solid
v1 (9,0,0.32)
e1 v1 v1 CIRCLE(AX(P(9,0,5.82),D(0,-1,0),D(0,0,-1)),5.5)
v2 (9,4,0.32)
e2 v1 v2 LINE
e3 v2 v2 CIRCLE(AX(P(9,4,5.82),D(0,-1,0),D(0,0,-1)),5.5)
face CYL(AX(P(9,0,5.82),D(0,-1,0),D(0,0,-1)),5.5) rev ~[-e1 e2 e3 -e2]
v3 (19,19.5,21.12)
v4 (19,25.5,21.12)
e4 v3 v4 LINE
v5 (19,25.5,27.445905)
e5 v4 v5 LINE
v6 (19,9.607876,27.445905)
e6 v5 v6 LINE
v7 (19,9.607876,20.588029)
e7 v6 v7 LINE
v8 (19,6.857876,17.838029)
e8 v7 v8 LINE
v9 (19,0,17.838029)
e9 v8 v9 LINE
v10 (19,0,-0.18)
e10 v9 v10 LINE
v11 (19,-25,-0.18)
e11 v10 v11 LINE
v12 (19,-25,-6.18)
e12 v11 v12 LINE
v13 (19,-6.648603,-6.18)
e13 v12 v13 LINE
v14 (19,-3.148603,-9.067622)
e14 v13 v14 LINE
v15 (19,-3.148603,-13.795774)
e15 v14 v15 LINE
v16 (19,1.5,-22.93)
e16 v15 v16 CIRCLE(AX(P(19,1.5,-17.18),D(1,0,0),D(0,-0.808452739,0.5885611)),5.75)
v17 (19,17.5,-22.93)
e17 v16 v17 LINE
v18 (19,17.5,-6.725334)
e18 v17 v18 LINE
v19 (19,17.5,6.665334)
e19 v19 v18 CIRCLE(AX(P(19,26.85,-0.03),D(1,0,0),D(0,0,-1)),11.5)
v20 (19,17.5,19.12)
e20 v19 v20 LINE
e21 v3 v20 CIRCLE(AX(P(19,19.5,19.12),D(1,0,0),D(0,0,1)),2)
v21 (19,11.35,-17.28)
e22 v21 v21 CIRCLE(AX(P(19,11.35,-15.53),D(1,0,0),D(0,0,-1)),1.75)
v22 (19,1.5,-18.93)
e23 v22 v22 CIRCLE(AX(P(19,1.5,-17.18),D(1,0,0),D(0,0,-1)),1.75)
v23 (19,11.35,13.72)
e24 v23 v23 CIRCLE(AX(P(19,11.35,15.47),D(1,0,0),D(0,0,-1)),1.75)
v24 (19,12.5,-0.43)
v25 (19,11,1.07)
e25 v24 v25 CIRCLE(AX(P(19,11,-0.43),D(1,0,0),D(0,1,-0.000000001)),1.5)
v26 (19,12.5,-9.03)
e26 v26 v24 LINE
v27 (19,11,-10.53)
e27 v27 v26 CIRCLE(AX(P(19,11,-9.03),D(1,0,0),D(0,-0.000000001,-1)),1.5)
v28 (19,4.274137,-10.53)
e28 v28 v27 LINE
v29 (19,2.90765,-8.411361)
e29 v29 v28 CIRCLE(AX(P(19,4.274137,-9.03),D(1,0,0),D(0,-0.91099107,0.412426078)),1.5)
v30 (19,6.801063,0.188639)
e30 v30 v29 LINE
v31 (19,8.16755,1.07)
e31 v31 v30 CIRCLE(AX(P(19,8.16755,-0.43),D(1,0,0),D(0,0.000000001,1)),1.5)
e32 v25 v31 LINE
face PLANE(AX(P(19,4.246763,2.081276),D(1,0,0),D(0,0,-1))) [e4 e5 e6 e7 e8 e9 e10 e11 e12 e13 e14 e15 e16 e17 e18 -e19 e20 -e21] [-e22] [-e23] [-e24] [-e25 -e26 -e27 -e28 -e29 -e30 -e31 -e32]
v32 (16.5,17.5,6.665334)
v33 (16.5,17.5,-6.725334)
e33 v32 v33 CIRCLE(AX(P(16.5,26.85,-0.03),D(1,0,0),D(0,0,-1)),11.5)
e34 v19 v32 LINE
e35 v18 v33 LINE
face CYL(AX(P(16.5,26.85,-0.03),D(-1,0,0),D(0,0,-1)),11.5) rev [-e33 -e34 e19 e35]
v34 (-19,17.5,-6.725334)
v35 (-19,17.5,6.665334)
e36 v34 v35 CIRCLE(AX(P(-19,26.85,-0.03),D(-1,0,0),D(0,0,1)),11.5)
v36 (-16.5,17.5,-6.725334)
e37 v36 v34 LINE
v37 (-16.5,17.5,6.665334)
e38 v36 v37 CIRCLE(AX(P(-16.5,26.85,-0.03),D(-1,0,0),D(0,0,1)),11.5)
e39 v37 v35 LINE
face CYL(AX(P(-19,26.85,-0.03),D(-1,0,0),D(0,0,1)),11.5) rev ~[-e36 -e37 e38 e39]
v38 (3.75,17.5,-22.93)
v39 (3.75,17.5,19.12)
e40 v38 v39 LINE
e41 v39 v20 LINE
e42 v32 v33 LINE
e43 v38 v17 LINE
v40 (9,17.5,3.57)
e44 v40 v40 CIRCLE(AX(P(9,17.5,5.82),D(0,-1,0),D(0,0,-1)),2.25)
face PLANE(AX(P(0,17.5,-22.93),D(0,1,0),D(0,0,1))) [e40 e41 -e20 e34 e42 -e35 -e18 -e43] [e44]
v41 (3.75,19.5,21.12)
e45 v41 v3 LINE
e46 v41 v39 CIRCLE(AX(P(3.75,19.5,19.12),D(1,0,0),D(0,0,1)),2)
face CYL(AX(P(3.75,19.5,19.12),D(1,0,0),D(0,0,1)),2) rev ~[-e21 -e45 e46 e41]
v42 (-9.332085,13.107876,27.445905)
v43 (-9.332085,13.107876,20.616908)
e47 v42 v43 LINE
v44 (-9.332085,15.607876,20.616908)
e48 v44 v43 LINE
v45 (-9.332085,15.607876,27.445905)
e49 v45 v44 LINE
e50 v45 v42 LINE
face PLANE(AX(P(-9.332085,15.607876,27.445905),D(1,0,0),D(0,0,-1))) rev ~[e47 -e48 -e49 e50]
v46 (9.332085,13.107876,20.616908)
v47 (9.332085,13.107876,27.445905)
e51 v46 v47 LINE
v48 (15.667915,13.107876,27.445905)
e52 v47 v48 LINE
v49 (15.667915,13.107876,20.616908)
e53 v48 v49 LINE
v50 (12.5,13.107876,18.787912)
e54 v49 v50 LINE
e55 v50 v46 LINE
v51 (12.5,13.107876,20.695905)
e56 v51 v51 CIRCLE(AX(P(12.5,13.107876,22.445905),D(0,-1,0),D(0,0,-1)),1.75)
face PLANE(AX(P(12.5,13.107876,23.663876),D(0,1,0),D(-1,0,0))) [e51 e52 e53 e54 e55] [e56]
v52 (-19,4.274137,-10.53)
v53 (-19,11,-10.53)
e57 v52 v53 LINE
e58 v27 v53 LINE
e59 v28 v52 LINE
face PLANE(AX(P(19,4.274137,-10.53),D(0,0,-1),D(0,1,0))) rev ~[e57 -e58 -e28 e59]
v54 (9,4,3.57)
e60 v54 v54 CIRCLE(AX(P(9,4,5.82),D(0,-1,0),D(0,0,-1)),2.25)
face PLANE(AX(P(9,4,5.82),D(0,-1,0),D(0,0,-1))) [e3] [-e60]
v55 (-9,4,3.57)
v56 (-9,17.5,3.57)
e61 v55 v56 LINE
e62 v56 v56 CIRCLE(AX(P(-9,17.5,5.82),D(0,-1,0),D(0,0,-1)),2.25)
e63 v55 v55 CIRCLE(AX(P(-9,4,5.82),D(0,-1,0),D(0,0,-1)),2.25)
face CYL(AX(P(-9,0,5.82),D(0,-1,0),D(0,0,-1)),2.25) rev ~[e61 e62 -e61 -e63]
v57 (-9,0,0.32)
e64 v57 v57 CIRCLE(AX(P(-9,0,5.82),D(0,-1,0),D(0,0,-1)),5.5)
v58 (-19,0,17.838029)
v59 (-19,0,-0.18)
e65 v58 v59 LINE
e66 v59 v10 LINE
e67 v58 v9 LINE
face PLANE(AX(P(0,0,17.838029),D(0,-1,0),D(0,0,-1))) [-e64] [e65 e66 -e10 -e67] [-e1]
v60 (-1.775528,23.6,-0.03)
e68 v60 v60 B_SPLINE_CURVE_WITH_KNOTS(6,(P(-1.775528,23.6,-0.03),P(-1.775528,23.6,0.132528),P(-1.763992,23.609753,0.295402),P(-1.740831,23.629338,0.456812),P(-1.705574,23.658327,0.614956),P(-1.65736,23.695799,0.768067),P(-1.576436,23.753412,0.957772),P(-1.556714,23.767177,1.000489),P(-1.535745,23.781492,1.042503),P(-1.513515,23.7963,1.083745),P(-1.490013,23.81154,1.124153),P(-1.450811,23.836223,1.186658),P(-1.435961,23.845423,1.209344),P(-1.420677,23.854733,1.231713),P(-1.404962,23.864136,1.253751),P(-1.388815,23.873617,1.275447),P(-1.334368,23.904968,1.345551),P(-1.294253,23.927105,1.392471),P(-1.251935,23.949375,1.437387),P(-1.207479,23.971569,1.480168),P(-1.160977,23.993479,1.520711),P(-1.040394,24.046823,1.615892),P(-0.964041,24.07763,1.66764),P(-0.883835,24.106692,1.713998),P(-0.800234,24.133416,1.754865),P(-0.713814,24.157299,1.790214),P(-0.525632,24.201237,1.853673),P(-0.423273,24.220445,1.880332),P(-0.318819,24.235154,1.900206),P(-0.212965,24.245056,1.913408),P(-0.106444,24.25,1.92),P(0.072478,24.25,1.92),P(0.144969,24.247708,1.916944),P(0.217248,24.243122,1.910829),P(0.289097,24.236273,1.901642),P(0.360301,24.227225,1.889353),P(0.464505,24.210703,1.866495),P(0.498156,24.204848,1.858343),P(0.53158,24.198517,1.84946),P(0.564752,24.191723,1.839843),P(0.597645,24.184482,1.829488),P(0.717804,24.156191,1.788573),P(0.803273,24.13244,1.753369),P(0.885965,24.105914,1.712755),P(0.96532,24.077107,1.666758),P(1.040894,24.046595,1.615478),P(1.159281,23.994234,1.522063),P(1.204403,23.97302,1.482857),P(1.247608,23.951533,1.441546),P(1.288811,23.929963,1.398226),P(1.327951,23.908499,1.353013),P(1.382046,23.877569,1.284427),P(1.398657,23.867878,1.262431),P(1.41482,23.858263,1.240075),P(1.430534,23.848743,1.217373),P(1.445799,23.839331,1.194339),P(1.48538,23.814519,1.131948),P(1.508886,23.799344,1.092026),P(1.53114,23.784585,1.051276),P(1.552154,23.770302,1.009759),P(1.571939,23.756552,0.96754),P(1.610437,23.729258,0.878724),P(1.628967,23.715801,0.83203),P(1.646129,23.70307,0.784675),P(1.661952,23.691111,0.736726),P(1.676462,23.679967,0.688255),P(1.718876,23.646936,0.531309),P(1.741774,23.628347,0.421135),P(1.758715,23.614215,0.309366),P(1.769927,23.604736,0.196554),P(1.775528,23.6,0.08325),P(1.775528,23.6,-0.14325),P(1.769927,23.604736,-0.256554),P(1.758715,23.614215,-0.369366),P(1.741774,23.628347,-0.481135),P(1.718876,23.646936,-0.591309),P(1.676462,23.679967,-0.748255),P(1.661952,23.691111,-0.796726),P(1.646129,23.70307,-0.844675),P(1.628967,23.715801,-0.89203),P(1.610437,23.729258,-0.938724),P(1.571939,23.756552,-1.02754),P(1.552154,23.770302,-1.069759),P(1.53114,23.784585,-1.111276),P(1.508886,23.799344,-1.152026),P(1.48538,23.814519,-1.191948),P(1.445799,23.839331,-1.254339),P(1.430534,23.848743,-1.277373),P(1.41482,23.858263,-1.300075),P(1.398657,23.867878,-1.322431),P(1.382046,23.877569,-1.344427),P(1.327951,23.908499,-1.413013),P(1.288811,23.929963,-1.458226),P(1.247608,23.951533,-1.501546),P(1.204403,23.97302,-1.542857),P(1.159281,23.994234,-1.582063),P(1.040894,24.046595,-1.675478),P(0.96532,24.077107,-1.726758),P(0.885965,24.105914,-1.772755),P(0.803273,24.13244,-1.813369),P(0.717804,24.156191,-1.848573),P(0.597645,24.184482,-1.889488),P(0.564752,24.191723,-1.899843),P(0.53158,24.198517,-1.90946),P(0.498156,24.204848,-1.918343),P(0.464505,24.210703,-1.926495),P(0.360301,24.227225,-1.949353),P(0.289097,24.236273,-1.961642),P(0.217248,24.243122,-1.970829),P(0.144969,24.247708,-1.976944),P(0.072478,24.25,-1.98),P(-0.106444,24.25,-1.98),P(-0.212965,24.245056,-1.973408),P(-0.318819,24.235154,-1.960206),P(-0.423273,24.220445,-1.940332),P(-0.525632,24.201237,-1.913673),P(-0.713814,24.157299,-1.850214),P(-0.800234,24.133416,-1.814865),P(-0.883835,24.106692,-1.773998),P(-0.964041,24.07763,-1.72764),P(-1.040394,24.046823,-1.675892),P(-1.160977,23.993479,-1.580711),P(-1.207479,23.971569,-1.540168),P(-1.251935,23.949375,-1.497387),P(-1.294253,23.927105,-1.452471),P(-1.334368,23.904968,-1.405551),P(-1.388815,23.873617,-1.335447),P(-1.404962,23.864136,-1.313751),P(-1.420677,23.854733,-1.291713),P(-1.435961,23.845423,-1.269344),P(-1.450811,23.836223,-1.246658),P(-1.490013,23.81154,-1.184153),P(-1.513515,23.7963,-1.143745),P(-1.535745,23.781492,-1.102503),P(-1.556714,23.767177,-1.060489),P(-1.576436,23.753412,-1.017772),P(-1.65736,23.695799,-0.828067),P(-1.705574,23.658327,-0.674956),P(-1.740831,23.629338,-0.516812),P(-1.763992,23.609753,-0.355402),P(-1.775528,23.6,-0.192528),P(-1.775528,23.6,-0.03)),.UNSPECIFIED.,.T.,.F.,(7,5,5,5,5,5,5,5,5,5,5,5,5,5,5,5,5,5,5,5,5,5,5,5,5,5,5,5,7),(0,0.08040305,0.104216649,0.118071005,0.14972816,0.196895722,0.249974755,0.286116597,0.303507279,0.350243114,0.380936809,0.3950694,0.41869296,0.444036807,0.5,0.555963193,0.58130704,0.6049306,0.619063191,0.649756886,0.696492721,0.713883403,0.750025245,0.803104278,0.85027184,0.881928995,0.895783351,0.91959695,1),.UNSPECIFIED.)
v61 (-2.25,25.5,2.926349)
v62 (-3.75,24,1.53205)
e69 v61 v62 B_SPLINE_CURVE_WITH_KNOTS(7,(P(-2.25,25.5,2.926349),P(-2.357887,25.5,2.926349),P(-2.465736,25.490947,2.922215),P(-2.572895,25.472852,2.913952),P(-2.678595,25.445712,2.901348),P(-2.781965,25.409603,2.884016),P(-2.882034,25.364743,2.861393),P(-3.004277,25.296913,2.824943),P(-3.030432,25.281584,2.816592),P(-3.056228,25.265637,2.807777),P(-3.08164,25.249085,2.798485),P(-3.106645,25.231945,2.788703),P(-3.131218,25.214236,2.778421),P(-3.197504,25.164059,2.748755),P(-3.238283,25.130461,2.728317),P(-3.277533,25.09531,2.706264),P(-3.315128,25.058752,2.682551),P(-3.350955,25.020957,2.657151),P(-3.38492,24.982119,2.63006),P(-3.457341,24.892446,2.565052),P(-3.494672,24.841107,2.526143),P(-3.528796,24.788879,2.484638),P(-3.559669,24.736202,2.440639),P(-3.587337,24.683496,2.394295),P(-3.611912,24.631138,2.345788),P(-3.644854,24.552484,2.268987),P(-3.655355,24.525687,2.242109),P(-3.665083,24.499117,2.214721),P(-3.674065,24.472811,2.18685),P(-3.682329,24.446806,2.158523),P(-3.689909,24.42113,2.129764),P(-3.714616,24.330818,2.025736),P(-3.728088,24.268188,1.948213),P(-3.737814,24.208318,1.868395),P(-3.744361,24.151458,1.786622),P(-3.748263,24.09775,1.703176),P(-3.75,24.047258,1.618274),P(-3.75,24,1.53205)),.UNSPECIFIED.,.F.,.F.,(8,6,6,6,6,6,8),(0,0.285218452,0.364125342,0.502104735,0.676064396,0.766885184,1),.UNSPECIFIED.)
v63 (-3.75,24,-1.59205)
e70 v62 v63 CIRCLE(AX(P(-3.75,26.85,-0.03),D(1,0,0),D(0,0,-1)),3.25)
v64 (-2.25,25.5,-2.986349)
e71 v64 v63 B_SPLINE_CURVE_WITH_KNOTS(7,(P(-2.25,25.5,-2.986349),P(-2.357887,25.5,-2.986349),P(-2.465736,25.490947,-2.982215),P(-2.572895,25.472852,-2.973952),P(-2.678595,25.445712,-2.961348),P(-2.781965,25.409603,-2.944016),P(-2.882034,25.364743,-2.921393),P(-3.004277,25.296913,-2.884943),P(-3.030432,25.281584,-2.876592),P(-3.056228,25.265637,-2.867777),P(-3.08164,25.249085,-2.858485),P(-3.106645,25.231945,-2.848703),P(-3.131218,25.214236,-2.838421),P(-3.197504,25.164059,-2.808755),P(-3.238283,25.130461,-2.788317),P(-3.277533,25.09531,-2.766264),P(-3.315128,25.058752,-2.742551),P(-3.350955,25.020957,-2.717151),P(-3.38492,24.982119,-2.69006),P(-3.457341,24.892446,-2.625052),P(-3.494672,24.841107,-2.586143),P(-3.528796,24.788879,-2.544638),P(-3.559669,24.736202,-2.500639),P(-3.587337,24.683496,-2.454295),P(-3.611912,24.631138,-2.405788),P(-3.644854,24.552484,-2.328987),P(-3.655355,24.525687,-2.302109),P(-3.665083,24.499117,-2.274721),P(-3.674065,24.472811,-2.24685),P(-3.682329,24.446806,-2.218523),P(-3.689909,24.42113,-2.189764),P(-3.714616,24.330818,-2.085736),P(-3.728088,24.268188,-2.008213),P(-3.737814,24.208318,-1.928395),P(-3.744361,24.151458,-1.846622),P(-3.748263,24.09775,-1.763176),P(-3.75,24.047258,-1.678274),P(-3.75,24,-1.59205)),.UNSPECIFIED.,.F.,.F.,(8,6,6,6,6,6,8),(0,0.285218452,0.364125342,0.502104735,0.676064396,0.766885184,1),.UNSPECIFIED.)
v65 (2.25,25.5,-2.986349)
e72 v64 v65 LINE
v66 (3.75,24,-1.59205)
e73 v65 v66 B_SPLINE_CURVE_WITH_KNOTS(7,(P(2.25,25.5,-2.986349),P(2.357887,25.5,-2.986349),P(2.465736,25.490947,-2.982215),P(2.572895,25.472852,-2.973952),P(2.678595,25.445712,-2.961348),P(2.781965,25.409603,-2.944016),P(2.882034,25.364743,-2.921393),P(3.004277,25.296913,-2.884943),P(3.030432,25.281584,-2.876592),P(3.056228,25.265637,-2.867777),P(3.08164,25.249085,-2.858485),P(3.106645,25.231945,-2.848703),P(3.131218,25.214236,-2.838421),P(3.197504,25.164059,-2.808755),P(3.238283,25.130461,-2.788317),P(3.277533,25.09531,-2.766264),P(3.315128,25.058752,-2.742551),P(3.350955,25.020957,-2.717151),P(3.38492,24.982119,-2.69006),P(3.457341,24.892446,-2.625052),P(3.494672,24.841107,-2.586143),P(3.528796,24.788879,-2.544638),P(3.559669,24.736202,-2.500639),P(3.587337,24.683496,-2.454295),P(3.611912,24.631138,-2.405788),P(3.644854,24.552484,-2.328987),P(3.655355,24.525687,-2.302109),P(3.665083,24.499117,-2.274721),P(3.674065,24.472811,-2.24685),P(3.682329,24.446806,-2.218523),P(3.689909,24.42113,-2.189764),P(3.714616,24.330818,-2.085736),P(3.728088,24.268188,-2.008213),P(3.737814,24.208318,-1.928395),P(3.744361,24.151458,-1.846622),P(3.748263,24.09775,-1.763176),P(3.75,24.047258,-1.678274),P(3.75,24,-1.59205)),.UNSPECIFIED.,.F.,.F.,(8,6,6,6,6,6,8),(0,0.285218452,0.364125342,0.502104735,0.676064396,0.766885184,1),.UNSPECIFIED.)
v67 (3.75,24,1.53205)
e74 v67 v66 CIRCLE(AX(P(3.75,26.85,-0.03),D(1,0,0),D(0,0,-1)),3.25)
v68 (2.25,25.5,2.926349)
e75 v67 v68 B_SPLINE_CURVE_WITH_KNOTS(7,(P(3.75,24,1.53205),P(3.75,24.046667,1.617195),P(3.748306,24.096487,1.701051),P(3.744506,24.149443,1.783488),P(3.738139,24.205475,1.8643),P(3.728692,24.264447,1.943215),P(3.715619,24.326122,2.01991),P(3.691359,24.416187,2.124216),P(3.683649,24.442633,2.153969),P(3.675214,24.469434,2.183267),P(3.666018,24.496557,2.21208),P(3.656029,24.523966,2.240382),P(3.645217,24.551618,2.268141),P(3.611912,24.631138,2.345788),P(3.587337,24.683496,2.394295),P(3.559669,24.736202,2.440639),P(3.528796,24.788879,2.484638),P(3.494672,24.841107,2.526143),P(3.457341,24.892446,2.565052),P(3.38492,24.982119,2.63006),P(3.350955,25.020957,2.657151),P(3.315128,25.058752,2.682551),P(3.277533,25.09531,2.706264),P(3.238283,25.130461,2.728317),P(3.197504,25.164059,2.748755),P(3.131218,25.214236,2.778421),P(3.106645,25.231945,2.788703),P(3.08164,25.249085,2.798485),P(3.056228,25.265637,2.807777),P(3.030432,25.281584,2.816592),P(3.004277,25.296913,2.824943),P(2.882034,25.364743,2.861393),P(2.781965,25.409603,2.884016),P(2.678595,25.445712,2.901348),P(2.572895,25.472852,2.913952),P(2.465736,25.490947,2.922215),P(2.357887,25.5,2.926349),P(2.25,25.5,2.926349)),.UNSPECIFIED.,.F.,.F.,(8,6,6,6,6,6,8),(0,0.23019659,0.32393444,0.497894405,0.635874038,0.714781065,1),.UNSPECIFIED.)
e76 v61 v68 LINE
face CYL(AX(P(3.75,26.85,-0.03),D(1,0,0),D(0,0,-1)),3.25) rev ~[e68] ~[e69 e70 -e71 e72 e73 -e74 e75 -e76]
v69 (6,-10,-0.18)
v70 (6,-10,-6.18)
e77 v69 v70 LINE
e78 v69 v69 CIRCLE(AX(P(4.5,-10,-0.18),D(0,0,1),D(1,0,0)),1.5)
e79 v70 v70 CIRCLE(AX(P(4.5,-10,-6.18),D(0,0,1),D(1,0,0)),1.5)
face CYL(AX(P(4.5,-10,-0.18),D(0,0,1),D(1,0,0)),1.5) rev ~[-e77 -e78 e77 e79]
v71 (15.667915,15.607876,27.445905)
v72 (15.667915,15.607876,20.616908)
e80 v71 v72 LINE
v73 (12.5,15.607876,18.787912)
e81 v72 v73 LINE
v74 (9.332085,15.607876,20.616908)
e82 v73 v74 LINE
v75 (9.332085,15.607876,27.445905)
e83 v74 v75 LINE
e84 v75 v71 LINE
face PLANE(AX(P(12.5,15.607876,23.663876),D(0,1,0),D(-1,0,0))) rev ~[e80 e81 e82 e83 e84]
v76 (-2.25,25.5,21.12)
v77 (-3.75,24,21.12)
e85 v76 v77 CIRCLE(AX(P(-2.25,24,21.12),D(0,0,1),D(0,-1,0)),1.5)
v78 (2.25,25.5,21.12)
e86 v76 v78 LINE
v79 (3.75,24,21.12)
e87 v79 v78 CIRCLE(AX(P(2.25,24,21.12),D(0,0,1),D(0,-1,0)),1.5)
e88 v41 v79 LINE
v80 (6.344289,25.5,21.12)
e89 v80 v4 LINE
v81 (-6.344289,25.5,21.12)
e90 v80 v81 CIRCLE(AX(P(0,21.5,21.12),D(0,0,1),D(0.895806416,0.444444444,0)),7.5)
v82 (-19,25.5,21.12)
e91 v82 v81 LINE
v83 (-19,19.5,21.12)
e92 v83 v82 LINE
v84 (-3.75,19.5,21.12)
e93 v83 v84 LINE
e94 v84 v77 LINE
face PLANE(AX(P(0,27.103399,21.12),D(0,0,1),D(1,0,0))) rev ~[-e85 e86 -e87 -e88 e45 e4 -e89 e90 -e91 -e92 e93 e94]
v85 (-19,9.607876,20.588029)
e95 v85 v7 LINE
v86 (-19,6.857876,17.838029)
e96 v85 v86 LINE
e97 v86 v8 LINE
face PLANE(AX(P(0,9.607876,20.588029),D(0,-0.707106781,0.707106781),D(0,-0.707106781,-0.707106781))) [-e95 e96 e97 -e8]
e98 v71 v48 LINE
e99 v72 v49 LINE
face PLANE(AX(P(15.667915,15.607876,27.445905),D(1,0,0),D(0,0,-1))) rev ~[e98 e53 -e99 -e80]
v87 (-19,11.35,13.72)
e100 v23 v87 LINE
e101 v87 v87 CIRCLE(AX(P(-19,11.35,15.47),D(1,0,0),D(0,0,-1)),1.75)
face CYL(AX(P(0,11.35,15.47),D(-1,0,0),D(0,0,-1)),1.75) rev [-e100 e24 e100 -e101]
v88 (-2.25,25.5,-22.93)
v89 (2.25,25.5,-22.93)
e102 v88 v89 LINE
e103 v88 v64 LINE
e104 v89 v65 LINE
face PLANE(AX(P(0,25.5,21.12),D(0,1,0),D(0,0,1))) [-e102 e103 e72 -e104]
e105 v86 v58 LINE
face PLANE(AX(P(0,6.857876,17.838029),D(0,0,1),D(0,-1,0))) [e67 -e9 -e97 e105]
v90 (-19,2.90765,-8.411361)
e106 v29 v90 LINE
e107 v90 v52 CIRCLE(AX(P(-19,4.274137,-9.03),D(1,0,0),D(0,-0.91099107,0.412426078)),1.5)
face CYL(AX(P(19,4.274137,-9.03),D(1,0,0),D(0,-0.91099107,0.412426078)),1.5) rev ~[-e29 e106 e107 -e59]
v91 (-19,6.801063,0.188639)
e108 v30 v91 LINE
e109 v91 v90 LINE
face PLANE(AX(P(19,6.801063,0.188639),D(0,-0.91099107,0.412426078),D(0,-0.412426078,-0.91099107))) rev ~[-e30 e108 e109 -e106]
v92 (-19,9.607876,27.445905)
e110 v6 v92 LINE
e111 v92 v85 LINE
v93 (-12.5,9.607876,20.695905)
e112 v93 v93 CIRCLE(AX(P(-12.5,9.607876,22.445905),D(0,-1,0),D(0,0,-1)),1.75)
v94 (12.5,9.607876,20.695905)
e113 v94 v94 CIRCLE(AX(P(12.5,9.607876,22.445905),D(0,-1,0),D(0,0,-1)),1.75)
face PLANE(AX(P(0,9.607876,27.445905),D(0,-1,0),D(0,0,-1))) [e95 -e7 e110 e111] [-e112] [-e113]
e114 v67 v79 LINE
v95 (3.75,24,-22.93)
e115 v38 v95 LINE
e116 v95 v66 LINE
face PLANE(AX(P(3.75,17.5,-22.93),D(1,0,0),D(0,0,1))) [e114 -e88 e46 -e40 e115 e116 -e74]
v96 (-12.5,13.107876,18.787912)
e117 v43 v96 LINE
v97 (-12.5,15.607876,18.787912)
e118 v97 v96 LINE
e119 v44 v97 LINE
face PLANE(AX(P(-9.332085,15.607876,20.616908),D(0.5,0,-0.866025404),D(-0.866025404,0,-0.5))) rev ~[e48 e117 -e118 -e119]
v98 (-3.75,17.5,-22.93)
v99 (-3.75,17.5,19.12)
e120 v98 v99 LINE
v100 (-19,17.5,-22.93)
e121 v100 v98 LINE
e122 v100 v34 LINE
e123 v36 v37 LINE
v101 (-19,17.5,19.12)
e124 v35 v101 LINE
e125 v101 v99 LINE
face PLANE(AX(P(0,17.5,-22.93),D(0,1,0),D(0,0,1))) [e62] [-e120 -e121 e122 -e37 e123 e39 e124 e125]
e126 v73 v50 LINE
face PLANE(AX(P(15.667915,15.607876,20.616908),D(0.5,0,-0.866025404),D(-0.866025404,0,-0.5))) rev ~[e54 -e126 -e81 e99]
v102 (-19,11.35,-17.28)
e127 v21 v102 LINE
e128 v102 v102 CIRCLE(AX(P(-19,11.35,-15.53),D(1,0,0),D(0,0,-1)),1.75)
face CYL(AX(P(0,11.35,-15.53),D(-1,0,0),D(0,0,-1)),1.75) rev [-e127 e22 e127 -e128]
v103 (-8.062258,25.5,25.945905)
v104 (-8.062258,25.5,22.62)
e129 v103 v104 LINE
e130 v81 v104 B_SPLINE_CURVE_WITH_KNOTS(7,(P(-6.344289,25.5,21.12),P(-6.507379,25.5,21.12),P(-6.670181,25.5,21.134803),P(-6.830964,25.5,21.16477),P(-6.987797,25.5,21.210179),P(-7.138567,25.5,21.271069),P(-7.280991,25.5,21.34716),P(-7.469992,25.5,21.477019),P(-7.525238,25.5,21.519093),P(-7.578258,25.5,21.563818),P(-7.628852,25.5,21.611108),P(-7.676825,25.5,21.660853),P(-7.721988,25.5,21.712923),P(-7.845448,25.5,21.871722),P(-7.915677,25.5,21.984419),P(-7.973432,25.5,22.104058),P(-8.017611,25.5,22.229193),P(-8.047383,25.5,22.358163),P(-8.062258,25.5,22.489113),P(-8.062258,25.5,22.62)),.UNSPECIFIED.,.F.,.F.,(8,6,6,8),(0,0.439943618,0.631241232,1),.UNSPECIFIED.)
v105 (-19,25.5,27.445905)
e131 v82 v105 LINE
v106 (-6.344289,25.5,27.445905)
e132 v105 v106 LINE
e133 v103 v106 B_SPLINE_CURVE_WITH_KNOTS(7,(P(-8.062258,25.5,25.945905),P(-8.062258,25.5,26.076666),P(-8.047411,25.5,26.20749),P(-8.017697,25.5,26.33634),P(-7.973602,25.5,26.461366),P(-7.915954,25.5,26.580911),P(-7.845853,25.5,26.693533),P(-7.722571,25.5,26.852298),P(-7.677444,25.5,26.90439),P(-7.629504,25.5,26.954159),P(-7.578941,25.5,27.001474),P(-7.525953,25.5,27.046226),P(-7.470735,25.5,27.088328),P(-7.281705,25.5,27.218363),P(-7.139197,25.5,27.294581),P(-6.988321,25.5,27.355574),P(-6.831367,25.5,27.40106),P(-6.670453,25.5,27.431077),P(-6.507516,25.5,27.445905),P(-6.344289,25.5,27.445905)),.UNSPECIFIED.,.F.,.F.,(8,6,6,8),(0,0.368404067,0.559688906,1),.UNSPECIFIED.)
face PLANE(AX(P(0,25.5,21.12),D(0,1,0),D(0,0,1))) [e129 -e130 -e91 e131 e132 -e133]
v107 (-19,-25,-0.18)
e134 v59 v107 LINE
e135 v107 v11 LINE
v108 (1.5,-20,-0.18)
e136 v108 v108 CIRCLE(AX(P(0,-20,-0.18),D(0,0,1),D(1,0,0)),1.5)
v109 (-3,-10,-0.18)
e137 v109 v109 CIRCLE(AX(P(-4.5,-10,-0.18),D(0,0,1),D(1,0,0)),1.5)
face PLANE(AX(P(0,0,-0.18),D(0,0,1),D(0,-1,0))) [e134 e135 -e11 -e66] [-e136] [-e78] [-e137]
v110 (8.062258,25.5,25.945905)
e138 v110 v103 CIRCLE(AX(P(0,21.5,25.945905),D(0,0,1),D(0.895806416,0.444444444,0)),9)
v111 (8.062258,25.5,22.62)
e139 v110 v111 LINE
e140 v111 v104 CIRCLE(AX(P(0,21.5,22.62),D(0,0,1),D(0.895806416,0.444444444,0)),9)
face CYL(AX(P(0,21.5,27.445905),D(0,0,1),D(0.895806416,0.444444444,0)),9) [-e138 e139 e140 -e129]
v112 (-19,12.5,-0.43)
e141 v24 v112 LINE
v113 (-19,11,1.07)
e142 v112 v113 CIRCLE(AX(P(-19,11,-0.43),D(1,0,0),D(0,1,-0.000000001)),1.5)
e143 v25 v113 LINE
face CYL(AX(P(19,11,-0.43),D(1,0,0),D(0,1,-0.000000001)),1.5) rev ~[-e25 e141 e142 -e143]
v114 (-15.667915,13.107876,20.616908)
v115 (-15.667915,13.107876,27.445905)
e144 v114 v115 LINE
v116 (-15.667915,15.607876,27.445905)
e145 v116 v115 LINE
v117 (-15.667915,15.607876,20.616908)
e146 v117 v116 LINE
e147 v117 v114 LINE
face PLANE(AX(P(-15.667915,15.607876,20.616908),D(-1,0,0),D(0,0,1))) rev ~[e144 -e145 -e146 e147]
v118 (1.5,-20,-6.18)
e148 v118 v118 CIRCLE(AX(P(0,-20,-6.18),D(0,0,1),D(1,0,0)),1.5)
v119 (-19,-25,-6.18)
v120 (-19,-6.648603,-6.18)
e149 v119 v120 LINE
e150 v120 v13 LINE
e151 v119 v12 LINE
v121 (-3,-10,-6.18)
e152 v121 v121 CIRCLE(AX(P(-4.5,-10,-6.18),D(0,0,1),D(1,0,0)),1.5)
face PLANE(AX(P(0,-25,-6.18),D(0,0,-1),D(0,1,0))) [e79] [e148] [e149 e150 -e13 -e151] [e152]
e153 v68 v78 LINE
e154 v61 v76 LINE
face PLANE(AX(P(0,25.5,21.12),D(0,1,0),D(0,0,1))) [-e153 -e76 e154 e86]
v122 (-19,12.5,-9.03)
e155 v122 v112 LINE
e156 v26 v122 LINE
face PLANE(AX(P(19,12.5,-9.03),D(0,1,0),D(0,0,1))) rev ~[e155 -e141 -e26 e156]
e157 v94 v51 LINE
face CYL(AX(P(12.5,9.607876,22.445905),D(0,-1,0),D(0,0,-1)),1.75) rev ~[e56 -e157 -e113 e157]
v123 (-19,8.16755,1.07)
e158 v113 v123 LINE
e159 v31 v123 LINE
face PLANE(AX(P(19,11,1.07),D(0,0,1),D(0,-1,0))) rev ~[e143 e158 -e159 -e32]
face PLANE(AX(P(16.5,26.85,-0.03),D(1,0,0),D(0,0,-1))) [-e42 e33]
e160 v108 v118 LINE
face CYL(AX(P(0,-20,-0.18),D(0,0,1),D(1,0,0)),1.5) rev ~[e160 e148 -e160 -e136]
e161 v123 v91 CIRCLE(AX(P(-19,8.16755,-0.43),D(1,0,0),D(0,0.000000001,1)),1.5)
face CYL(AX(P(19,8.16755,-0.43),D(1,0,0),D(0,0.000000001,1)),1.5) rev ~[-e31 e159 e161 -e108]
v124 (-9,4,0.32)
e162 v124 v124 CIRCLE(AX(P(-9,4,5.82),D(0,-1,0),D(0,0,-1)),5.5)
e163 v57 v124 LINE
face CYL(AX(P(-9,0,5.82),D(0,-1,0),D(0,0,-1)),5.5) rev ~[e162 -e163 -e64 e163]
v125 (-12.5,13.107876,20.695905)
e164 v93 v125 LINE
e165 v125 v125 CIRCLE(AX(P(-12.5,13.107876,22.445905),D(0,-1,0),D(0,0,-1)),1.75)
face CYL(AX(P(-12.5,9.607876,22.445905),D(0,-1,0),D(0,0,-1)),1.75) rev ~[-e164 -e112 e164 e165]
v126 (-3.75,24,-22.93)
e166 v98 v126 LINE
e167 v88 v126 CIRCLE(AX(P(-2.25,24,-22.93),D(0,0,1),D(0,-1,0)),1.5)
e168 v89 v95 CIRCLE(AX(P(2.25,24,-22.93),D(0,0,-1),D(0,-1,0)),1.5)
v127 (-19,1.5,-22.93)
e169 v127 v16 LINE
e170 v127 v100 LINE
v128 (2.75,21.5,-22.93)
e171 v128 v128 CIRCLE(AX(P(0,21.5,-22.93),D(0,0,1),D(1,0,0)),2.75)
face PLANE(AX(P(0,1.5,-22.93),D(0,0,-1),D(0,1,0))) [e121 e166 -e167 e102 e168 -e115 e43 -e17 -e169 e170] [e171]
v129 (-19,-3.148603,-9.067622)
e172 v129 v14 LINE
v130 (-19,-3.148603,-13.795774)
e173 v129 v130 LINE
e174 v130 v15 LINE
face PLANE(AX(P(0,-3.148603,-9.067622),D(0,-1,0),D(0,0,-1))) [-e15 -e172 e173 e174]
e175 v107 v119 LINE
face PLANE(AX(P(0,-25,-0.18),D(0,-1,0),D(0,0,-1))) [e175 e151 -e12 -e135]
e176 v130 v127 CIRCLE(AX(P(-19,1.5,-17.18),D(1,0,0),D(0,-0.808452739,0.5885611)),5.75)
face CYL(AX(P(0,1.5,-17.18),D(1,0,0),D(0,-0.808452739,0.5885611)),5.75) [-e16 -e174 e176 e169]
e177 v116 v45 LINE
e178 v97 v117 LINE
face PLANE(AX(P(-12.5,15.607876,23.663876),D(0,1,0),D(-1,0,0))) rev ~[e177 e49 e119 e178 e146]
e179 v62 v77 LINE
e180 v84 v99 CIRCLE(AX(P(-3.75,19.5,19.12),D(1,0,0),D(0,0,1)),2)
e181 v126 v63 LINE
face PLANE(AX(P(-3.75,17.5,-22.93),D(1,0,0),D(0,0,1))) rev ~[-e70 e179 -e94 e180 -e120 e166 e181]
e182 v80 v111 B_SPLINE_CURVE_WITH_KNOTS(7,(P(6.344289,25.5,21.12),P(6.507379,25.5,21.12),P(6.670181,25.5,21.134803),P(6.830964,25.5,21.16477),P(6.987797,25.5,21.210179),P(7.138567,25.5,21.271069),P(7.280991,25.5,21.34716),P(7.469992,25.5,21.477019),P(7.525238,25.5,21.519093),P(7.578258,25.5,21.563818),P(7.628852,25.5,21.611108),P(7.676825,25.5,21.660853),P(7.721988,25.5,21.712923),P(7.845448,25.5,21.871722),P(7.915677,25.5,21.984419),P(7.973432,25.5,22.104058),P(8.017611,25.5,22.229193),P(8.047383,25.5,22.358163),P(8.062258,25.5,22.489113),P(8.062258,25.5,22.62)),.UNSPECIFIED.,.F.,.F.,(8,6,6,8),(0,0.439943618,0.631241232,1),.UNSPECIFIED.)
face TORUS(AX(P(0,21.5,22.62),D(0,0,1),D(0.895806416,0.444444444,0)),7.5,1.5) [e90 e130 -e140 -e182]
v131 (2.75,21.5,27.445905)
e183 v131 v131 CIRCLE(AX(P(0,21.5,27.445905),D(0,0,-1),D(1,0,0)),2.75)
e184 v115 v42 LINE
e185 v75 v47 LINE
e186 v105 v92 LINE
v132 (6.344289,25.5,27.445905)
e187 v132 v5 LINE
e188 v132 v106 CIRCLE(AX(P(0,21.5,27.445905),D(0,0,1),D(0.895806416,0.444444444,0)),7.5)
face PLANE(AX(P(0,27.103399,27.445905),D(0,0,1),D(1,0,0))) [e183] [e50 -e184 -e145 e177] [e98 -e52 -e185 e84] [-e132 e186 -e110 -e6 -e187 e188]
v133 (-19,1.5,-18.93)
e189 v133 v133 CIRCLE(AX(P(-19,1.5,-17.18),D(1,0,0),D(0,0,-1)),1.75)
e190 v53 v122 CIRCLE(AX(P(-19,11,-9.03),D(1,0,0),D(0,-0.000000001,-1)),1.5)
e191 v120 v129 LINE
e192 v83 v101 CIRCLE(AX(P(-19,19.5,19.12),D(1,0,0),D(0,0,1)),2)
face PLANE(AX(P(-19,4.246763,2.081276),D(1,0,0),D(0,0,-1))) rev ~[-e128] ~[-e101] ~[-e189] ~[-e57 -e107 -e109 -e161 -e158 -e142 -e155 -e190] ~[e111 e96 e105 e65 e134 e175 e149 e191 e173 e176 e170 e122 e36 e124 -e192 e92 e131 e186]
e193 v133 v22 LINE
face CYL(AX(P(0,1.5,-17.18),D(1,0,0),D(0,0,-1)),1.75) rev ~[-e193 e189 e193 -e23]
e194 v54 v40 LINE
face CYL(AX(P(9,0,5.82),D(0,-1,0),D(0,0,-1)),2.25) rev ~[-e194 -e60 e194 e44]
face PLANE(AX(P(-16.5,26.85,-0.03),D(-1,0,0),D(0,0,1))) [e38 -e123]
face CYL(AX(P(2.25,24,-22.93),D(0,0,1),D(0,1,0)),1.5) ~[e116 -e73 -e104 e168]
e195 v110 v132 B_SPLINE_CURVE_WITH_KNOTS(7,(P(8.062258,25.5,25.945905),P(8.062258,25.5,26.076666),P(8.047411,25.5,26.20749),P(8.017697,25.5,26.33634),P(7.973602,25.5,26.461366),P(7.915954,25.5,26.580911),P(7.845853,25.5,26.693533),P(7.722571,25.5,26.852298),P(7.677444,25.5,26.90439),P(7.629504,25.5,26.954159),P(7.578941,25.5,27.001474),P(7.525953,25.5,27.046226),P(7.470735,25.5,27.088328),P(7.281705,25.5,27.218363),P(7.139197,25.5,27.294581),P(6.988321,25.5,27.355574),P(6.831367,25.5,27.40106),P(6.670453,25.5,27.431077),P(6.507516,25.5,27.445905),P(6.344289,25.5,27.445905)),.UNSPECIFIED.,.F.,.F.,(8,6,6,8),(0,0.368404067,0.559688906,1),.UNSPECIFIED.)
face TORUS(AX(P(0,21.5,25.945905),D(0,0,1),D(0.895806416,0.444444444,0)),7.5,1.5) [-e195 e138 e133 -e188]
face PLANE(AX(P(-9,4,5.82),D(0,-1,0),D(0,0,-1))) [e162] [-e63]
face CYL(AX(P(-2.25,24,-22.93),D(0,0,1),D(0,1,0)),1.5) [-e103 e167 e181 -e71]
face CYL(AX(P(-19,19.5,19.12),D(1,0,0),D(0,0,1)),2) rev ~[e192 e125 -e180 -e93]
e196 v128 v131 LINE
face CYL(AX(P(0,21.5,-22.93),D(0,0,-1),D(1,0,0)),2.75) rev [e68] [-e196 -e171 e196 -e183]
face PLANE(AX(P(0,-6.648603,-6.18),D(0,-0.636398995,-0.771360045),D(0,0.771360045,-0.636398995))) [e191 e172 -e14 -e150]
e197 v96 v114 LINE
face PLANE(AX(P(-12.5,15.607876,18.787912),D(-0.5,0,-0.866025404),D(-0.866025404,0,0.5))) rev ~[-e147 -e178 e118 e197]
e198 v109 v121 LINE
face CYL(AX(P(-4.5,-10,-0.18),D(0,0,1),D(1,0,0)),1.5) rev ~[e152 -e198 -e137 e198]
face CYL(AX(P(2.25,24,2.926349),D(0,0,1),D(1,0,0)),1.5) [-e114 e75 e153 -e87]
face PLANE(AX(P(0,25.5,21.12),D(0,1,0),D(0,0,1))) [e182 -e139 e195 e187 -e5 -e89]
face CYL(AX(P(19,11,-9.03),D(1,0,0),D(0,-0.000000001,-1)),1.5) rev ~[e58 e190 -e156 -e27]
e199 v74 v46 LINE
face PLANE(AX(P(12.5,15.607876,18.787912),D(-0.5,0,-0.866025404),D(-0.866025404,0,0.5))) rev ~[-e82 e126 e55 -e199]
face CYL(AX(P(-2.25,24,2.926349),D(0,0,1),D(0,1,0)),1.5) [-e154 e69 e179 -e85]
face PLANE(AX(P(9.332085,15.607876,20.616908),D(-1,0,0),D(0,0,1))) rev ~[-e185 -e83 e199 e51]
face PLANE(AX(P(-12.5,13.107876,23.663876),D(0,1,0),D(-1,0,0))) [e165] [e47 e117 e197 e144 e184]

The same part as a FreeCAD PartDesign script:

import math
import FreeCAD as App
import Part
import Sketcher
Q = App.Units.Quantity


def edges_at(feature, points):
    """Names of the edges that pass closest to the given points."""
    edges = feature.Shape.Edges
    near = lambda p: min(range(len(edges)), key=lambda i: edges[i].distToShape(Part.Vertex(*p))[0])
    return sorted({f"Edge{near(p) + 1}" for p in points})

doc = App.newDocument("Part")
body = doc.addObject("PartDesign::Body", "Body")

# Sketch on YZ plane
sketch1 = doc.addObject("Sketcher::SketchObject", "Sketch")
body.addObject(sketch1)
sketch1.AttachmentSupport = (doc.YZ_Plane, [""])
sketch1.MapMode = "FlatFace"
sketch1.addGeometry([
    Part.LineSegment(App.Vector(9.607876, 27.445905, 0), App.Vector(9.607876, 20.588029, 0)),  # 0
    Part.LineSegment(App.Vector(9.607876, 20.588029, 0), App.Vector(6.857876, 17.838029, 0)),  # 1
    Part.LineSegment(App.Vector(6.857876, 17.838029, 0), App.Vector(0, 17.838029, 0)),  # 2
    Part.LineSegment(App.Vector(0, 17.838029, 0), App.Vector(0, -0.18, 0)),  # 3
    Part.LineSegment(App.Vector(0, -0.18, 0), App.Vector(-25, -0.18, 0)),  # 4
    Part.LineSegment(App.Vector(-25, -0.18, 0), App.Vector(-25, -6.18, 0)),  # 5
    Part.LineSegment(App.Vector(-25, -6.18, 0), App.Vector(-6.648603, -6.18, 0)),  # 6
    Part.LineSegment(App.Vector(-6.648603, -6.18, 0), App.Vector(-3.148603, -9.067622, 0)),  # 7
    Part.LineSegment(App.Vector(-3.148603, -9.067622, 0), App.Vector(-3.148603, -13.795774, 0)),  # 8
    Part.ArcOfCircle(Part.Circle(App.Vector(1.5, -17.18, 0), App.Vector(0, 0, 1), 5.75), math.radians(143.945034), math.radians(270)),  # 9
    Part.LineSegment(App.Vector(1.5, -22.93, 0), App.Vector(17.5, -22.93, 0)),  # 10
    Part.LineSegment(App.Vector(17.5, -22.93, 0), App.Vector(17.5, 21.12, 0)),  # 11
    Part.LineSegment(App.Vector(17.5, 21.12, 0), App.Vector(25.5, 21.12, 0)),  # 12
    Part.LineSegment(App.Vector(25.5, 21.12, 0), App.Vector(25.5, 27.445905, 0)),  # 13
    Part.LineSegment(App.Vector(25.5, 27.445905, 0), App.Vector(9.607876, 27.445905, 0)),  # 14
], False)
sketch1.addConstraint([
    Sketcher.Constraint("Coincident", 0, 2, 1, 1),
    Sketcher.Constraint("Coincident", 1, 2, 2, 1),
    Sketcher.Constraint("Coincident", 2, 2, 3, 1),
    Sketcher.Constraint("Coincident", 3, 2, 4, 1),
    Sketcher.Constraint("Coincident", 4, 2, 5, 1),
    Sketcher.Constraint("Coincident", 5, 2, 6, 1),
    Sketcher.Constraint("Coincident", 6, 2, 7, 1),
    Sketcher.Constraint("Coincident", 7, 2, 8, 1),
    Sketcher.Constraint("Coincident", 8, 2, 9, 1),
    Sketcher.Constraint("Tangent", 9, 2, 10, 1),
    Sketcher.Constraint("Coincident", 10, 2, 11, 1),
    Sketcher.Constraint("Coincident", 11, 2, 12, 1),
    Sketcher.Constraint("Coincident", 12, 2, 13, 1),
    Sketcher.Constraint("Coincident", 13, 2, 14, 1),
    Sketcher.Constraint("Coincident", 14, 2, 0, 1),
    Sketcher.Constraint("Vertical", 0),
    Sketcher.Constraint("Horizontal", 2),
    Sketcher.Constraint("Vertical", 3),
    Sketcher.Constraint("Horizontal", 4),
    Sketcher.Constraint("Vertical", 5),
    Sketcher.Constraint("Horizontal", 6),
    Sketcher.Constraint("Vertical", 8),
    Sketcher.Constraint("Horizontal", 10),
    Sketcher.Constraint("Vertical", 11),
    Sketcher.Constraint("Horizontal", 12),
    Sketcher.Constraint("Vertical", 13),
    Sketcher.Constraint("Horizontal", 14),
    Sketcher.Constraint("PointOnObject", 2, 2, -2),
    Sketcher.Constraint("Equal", 2, 0),
    Sketcher.Constraint("DistanceX", 4, 2, 4, 1, Q("25 mm")),
    Sketcher.Constraint("DistanceX", 10, 1, 10, 2, Q("16 mm")),
    Sketcher.Constraint("DistanceX", 12, 1, 12, 2, Q("8 mm")),
    Sketcher.Constraint("DistanceY", 5, 2, 5, 1, Q("6 mm")),
    Sketcher.Constraint("Angle", 1, Q("-135 deg")),
    Sketcher.Constraint("Radius", 9, Q("5.75 mm")),
    Sketcher.Constraint("DistanceY", 9, 3, 3, 2, Q("17 mm")),
    Sketcher.Constraint("DistanceY", 11, 1, 11, 2, Q("44.05 mm")),
    Sketcher.Constraint("DistanceX", -1, 1, 9, 3, Q("1.5 mm")),
    Sketcher.Constraint("DistanceX", 6, 2, 7, 2, Q("3.5 mm")),
    Sketcher.Constraint("DistanceY", 9, 3, -1, 1, Q("17.18 mm")),
    Sketcher.Constraint("DistanceX", 1, 2, 0, 2, Q("2.75 mm")),
    Sketcher.Constraint("DistanceY", 3, 2, 3, 1, Q("18.018029 mm")),
    Sketcher.Constraint("DistanceY", 8, 2, 8, 1, Q("4.728151 mm")),
    Sketcher.Constraint("Distance", 7, Q("4.53744 mm")),
    Sketcher.Constraint("DistanceX", 2, 2, 2, 1, Q("6.857876 mm")),
])
pad1 = doc.addObject("PartDesign::Pad", "Pad")
body.addObject(pad1)
pad1.Profile = sketch1
pad1.Length = 38
pad1.Midplane = True

# Sketch on XZ plane
sketch2 = doc.addObject("Sketcher::SketchObject", "Sketch001")
body.addObject(sketch2)
sketch2.AttachmentSupport = (doc.XZ_Plane, [""])
sketch2.MapMode = "FlatFace"
sketch2.AttachmentOffset = App.Placement(App.Vector(0, 0, -17.5), App.Rotation())
sketch2.addGeometry([
    Part.LineSegment(App.Vector(3.75, -22.93, 0), App.Vector(-3.75, -22.93, 0)),
    Part.LineSegment(App.Vector(-3.75, -22.93, 0), App.Vector(-3.75, 21.12, 0)),
    Part.LineSegment(App.Vector(-3.75, 21.12, 0), App.Vector(3.75, 21.12, 0)),
    Part.LineSegment(App.Vector(3.75, 21.12, 0), App.Vector(3.75, -22.93, 0)),
], False)
sketch2.addConstraint([
    Sketcher.Constraint("Coincident", 0, 2, 1, 1),
    Sketcher.Constraint("Coincident", 1, 2, 2, 1),
    Sketcher.Constraint("Coincident", 2, 2, 3, 1),
    Sketcher.Constraint("Coincident", 3, 2, 0, 1),
    Sketcher.Constraint("Horizontal", 0),
    Sketcher.Constraint("Vertical", 1),
    Sketcher.Constraint("Horizontal", 2),
    Sketcher.Constraint("Vertical", 3),
    Sketcher.Constraint("DistanceX", 0, 2, 0, 1, Q("7.5 mm")),
    Sketcher.Constraint("DistanceY", 1, 1, 1, 2, Q("44.05 mm")),
    Sketcher.Constraint("DistanceX", 0, 2, -1, 1, Q("3.75 mm")),
    Sketcher.Constraint("DistanceY", 0, 2, -1, 1, Q("22.93 mm")),
])
pad2 = doc.addObject("PartDesign::Pad", "Pad001")
body.addObject(pad2)
pad2.Profile = sketch2
pad2.Length = 8
pad2.Reversed = True

# Sketch on XY plane
sketch3 = doc.addObject("Sketcher::SketchObject", "Sketch002")
body.addObject(sketch3)
sketch3.AttachmentSupport = (doc.XY_Plane, [""])
sketch3.MapMode = "FlatFace"
sketch3.AttachmentOffset = App.Placement(App.Vector(0, 0, 27.445905), App.Rotation())
sketch3.addGeometry([
    Part.LineSegment(App.Vector(8.062258, 25.5, 0), App.Vector(-8.062258, 25.5, 0)),
    Part.ArcOfCircle(Part.Circle(App.Vector(0, 21.5, 0), App.Vector(0, 0, 1), 9), math.radians(26.3878), math.radians(153.6122)),
], False)
sketch3.addConstraint([
    Sketcher.Constraint("Coincident", 0, 1, 1, 1),
    Sketcher.Constraint("Coincident", 1, 2, 0, 2),
    Sketcher.Constraint("Horizontal", 0),
    Sketcher.Constraint("PointOnObject", 1, 3, -2),
    Sketcher.Constraint("Radius", 1, Q("9 mm")),
    Sketcher.Constraint("DistanceY", 1, 3, 0, 1, Q("4 mm")),
    Sketcher.Constraint("DistanceY", -1, 1, 1, 3, Q("21.5 mm")),
])
pad3 = doc.addObject("PartDesign::Pad", "Pad002")
body.addObject(pad3)
pad3.Profile = sketch3
pad3.Length = 6.325905
pad3.Reversed = True

# Sketch on YZ plane
sketch4 = doc.addObject("Sketcher::SketchObject", "Sketch003")
body.addObject(sketch4)
sketch4.AttachmentSupport = (doc.YZ_Plane, [""])
sketch4.MapMode = "FlatFace"
sketch4.addGeometry([
    Part.Circle(App.Vector(11.35, 15.47, 0), App.Vector(0, 0, 1), 1.75),
    Part.Circle(App.Vector(11.35, -15.53, 0), App.Vector(0, 0, 1), 1.75),
    Part.Circle(App.Vector(1.5, -17.18, 0), App.Vector(0, 0, 1), 1.75),
], False)
sketch4.addConstraint([
    Sketcher.Constraint("Equal", 0, 1),
    Sketcher.Constraint("Equal", 1, 2),
    Sketcher.Constraint("Vertical", 0, 3, 1, 3),
    Sketcher.Constraint("Diameter", 0, Q("3.5 mm")),
    Sketcher.Constraint("DistanceY", 1, 3, 0, 3, Q("31 mm")),
    Sketcher.Constraint("DistanceX", -1, 1, 2, 3, Q("1.5 mm")),
    Sketcher.Constraint("DistanceX", -1, 1, 0, 3, Q("11.35 mm")),
    Sketcher.Constraint("DistanceY", -1, 1, 0, 3, Q("15.47 mm")),
    Sketcher.Constraint("DistanceY", 2, 3, -1, 1, Q("17.18 mm")),
])
pocket1 = doc.addObject("PartDesign::Pocket", "Pocket")
body.addObject(pocket1)
pocket1.Profile = sketch4
pocket1.Length = 38
pocket1.Midplane = True

# Sketch on XY plane
sketch5 = doc.addObject("Sketcher::SketchObject", "Sketch004")
body.addObject(sketch5)
sketch5.AttachmentSupport = (doc.XY_Plane, [""])
sketch5.MapMode = "FlatFace"
sketch5.AttachmentOffset = App.Placement(App.Vector(0, 0, -0.18), App.Rotation())
sketch5.addGeometry([
    Part.Circle(App.Vector(0, -20, 0), App.Vector(0, 0, 1), 1.5),
    Part.Circle(App.Vector(4.5, -10, 0), App.Vector(0, 0, 1), 1.5),
    Part.Circle(App.Vector(-4.5, -10, 0), App.Vector(0, 0, 1), 1.5),
], False)
sketch5.addConstraint([
    Sketcher.Constraint("Equal", 0, 1),
    Sketcher.Constraint("Equal", 1, 2),
    Sketcher.Constraint("Symmetric", 1, 3, 2, 3, -2),
    Sketcher.Constraint("PointOnObject", 0, 3, -2),
    Sketcher.Constraint("Diameter", 0, Q("3 mm")),
    Sketcher.Constraint("DistanceY", 0, 3, -1, 1, Q("20 mm")),
    Sketcher.Constraint("DistanceY", 1, 3, -1, 1, Q("10 mm")),
    Sketcher.Constraint("DistanceX", 2, 3, 1, 3, Q("9 mm")),
])
pocket2 = doc.addObject("PartDesign::Pocket", "Pocket001")
body.addObject(pocket2)
pocket2.Profile = sketch5
pocket2.Type = "ThroughAll"

# Sketch on XZ plane
sketch6 = doc.addObject("Sketcher::SketchObject", "Sketch005")
body.addObject(sketch6)
sketch6.AttachmentSupport = (doc.XZ_Plane, [""])
sketch6.MapMode = "FlatFace"
sketch6.addGeometry([
    Part.Circle(App.Vector(-9, 5.82, 0), App.Vector(0, 0, 1), 2.25),
    Part.Circle(App.Vector(9, 5.82, 0), App.Vector(0, 0, 1), 2.25),
], False)
sketch6.addConstraint([
    Sketcher.Constraint("Equal", 0, 1),
    Sketcher.Constraint("Symmetric", 0, 3, 1, 3, -2),
    Sketcher.Constraint("Diameter", 0, Q("4.5 mm")),
    Sketcher.Constraint("DistanceX", 0, 3, -1, 1, Q("9 mm")),
    Sketcher.Constraint("DistanceY", -1, 1, 0, 3, Q("5.82 mm")),
])
pocket3 = doc.addObject("PartDesign::Pocket", "Pocket002")
body.addObject(pocket3)
pocket3.Profile = sketch6
pocket3.Type = "ThroughAll"

# Sketch on XZ plane
sketch7 = doc.addObject("Sketcher::SketchObject", "Sketch006")
body.addObject(sketch7)
sketch7.AttachmentSupport = (doc.XZ_Plane, [""])
sketch7.MapMode = "FlatFace"
sketch7.addGeometry([
    Part.Circle(App.Vector(9, 5.82, 0), App.Vector(0, 0, 1), 5.5),
    Part.Circle(App.Vector(-9, 5.82, 0), App.Vector(0, 0, 1), 5.5),
], False)
sketch7.addConstraint([
    Sketcher.Constraint("Equal", 0, 1),
    Sketcher.Constraint("Symmetric", 0, 3, 1, 3, -2),
    Sketcher.Constraint("Diameter", 0, Q("11 mm")),
    Sketcher.Constraint("DistanceX", -1, 1, 0, 3, Q("9 mm")),
    Sketcher.Constraint("DistanceY", -1, 1, 0, 3, Q("5.82 mm")),
])
pocket4 = doc.addObject("PartDesign::Pocket", "Pocket003")
body.addObject(pocket4)
pocket4.Profile = sketch7
pocket4.Length = 4

# Sketch on YZ plane
sketch8 = doc.addObject("Sketcher::SketchObject", "Sketch007")
body.addObject(sketch8)
sketch8.AttachmentSupport = (doc.YZ_Plane, [""])
sketch8.MapMode = "FlatFace"
sketch8.AttachmentOffset = App.Placement(App.Vector(0, 0, -19), App.Rotation())
sketch8.addGeometry(Part.Circle(App.Vector(26.85, -0.03, 0), App.Vector(0, 0, 1), 11.5), False)
sketch8.addConstraint([
    Sketcher.Constraint("Diameter", 0, Q("23 mm")),
    Sketcher.Constraint("DistanceX", -1, 1, 0, 3, Q("26.85 mm")),
    Sketcher.Constraint("DistanceY", 0, 3, -1, 1, Q("0.03 mm")),
])
pocket5 = doc.addObject("PartDesign::Pocket", "Pocket004")
body.addObject(pocket5)
pocket5.Profile = sketch8
pocket5.Length = 2.5
pocket5.Reversed = True

# Sketch on YZ plane
sketch9 = doc.addObject("Sketcher::SketchObject", "Sketch008")
body.addObject(sketch9)
sketch9.AttachmentSupport = (doc.YZ_Plane, [""])
sketch9.MapMode = "FlatFace"
sketch9.AttachmentOffset = App.Placement(App.Vector(0, 0, 16.5), App.Rotation())
sketch9.addGeometry(Part.Circle(App.Vector(26.85, -0.03, 0), App.Vector(0, 0, 1), 11.5), False)
sketch9.addConstraint([
    Sketcher.Constraint("Diameter", 0, Q("23 mm")),
    Sketcher.Constraint("DistanceX", -1, 1, 0, 3, Q("26.85 mm")),
    Sketcher.Constraint("DistanceY", 0, 3, -1, 1, Q("0.03 mm")),
])
pocket6 = doc.addObject("PartDesign::Pocket", "Pocket005")
body.addObject(pocket6)
pocket6.Profile = sketch9
pocket6.Length = 2.5
pocket6.Reversed = True

# Sketch on YZ plane
sketch10 = doc.addObject("Sketcher::SketchObject", "Sketch009")
body.addObject(sketch10)
sketch10.AttachmentSupport = (doc.YZ_Plane, [""])
sketch10.MapMode = "FlatFace"
sketch10.AttachmentOffset = App.Placement(App.Vector(0, 0, 3.75), App.Rotation())
sketch10.addGeometry(Part.Circle(App.Vector(26.85, -0.03, 0), App.Vector(0, 0, 1), 3.25), False)
sketch10.addConstraint([
    Sketcher.Constraint("Diameter", 0, Q("6.5 mm")),
    Sketcher.Constraint("DistanceX", -1, 1, 0, 3, Q("26.85 mm")),
    Sketcher.Constraint("DistanceY", 0, 3, -1, 1, Q("0.03 mm")),
])
pocket7 = doc.addObject("PartDesign::Pocket", "Pocket006")
body.addObject(pocket7)
pocket7.Profile = sketch10
pocket7.Length = 8

# Sketch on XY plane
sketch11 = doc.addObject("Sketcher::SketchObject", "Sketch010")
body.addObject(sketch11)
sketch11.AttachmentSupport = (doc.XY_Plane, [""])
sketch11.MapMode = "FlatFace"
sketch11.AttachmentOffset = App.Placement(App.Vector(0, 0, -22.93), App.Rotation())
sketch11.addGeometry(Part.Circle(App.Vector(0, 21.5, 0), App.Vector(0, 0, 1), 2.75), False)
sketch11.addConstraint([
    Sketcher.Constraint("PointOnObject", 0, 3, -2),
    Sketcher.Constraint("Diameter", 0, Q("5.5 mm")),
    Sketcher.Constraint("DistanceY", -1, 1, 0, 3, Q("21.5 mm")),
])
pocket8 = doc.addObject("PartDesign::Pocket", "Pocket007")
body.addObject(pocket8)
pocket8.Profile = sketch11
pocket8.Type = "ThroughAll"
pocket8.Reversed = True

# Sketch on YZ plane
sketch12 = doc.addObject("Sketcher::SketchObject", "Sketch011")
body.addObject(sketch12)
sketch12.AttachmentSupport = (doc.YZ_Plane, [""])
sketch12.MapMode = "FlatFace"
sketch12.AttachmentOffset = App.Placement(App.Vector(0, 0, 19), App.Rotation())
sketch12.addGeometry([
    Part.LineSegment(App.Vector(6.801063, 0.188639, 0), App.Vector(2.90765, -8.411361, 0)),  # 0
    Part.ArcOfCircle(Part.Circle(App.Vector(4.274137, -9.03, 0), App.Vector(0, 0, 1), 1.5), math.radians(155.642671), math.radians(270)),  # 1
    Part.LineSegment(App.Vector(4.274137, -10.53, 0), App.Vector(11, -10.53, 0)),  # 2
    Part.ArcOfCircle(Part.Circle(App.Vector(11, -9.03, 0), App.Vector(0, 0, 1), 1.5), math.radians(-90), math.radians(0)),  # 3
    Part.LineSegment(App.Vector(12.5, -9.03, 0), App.Vector(12.5, -0.43, 0)),  # 4
    Part.ArcOfCircle(Part.Circle(App.Vector(11, -0.43, 0), App.Vector(0, 0, 1), 1.5), math.radians(0), math.radians(90)),  # 5
    Part.LineSegment(App.Vector(11, 1.07, 0), App.Vector(8.16755, 1.07, 0)),  # 6
    Part.ArcOfCircle(Part.Circle(App.Vector(8.16755, -0.43, 0), App.Vector(0, 0, 1), 1.5), math.radians(90), math.radians(155.642671)),  # 7
], False)
sketch12.addConstraint([
    Sketcher.Constraint("Tangent", 0, 2, 1, 1),
    Sketcher.Constraint("Tangent", 1, 2, 2, 1),
    Sketcher.Constraint("Tangent", 2, 2, 3, 1),
    Sketcher.Constraint("Tangent", 3, 2, 4, 1),
    Sketcher.Constraint("Tangent", 4, 2, 5, 1),
    Sketcher.Constraint("Tangent", 5, 2, 6, 1),
    Sketcher.Constraint("Tangent", 6, 2, 7, 1),
    Sketcher.Constraint("Tangent", 7, 2, 0, 1),
    Sketcher.Constraint("Horizontal", 2),
    Sketcher.Constraint("Vertical", 4),
    Sketcher.Constraint("Horizontal", 6),
    Sketcher.Constraint("Equal", 1, 3),
    Sketcher.Constraint("Equal", 3, 5),
    Sketcher.Constraint("Equal", 5, 7),
    Sketcher.Constraint("Radius", 1, Q("1.5 mm")),
    Sketcher.Constraint("DistanceY", 4, 1, 4, 2, Q("8.6 mm")),
    Sketcher.Constraint("DistanceX", -1, 1, 3, 3, Q("11 mm")),
    Sketcher.Constraint("DistanceY", 1, 3, -1, 1, Q("9.03 mm")),
    Sketcher.Constraint("DistanceX", 6, 2, 6, 1, Q("2.83245 mm")),
    Sketcher.Constraint("DistanceX", 0, 2, 7, 3, Q("5.259899 mm")),
])
pocket9 = doc.addObject("PartDesign::Pocket", "Pocket008")
body.addObject(pocket9)
pocket9.Profile = sketch12
pocket9.Type = "ThroughAll"
doc.recompute()

fillet = doc.addObject("PartDesign::Fillet", "Fillet")
body.addObject(fillet)
fillet.Base = (pocket9, edges_at(pocket9, [(11.375, 17.5, 21.12), (-11.375, 17.5, 21.12)]))
fillet.Radius = 2
doc.recompute()

fillet2 = doc.addObject("PartDesign::Fillet", "Fillet001")
body.addObject(fillet2)
fillet2.Base = (fillet, edges_at(fillet, [(0, 30.5, 21.12), (0, 30.5, 27.446)]))
fillet2.Radius = 1.5
doc.recompute()

fillet3 = doc.addObject("PartDesign::Fillet", "Fillet002")
body.addObject(fillet3)
fillet3.Base = (fillet2, edges_at(fillet2, [
    (3.75, 25.5, -12.958),
    (-3.75, 25.5, 12.023),
    (-3.75, 25.5, -12.958),
    (3.75, 25.5, 12.023),
]))
fillet3.Radius = 1.5

# Sketch on XZ plane
sketch13 = doc.addObject("Sketcher::SketchObject", "Sketch012")
body.addObject(sketch13)
sketch13.AttachmentSupport = (doc.XZ_Plane, [""])
sketch13.MapMode = "FlatFace"
sketch13.AttachmentOffset = App.Placement(App.Vector(0, 0, -9.607876), App.Rotation())
sketch13.addGeometry([
    Part.Circle(App.Vector(-12.5, 22.445905, 0), App.Vector(0, 0, 1), 1.75),
    Part.Circle(App.Vector(12.5, 22.445905, 0), App.Vector(0, 0, 1), 1.75),
], False)
sketch13.addConstraint([
    Sketcher.Constraint("Equal", 0, 1),
    Sketcher.Constraint("Symmetric", 0, 3, 1, 3, -2),
    Sketcher.Constraint("Diameter", 0, Q("3.5 mm")),
    Sketcher.Constraint("DistanceX", 0, 3, 1, 3, Q("25 mm")),
    Sketcher.Constraint("DistanceY", -1, 1, 0, 3, Q("22.445905 mm")),
])
pocket10 = doc.addObject("PartDesign::Pocket", "Pocket009")
body.addObject(pocket10)
pocket10.Profile = sketch13
pocket10.Length = 6

# Sketch on XZ plane
sketch14 = doc.addObject("Sketcher::SketchObject", "Sketch013")
body.addObject(sketch14)
sketch14.AttachmentSupport = (doc.XZ_Plane, [""])
sketch14.MapMode = "FlatFace"
sketch14.AttachmentOffset = App.Placement(App.Vector(0, 0, -15.607876), App.Rotation())
sketch14.addGeometry([
    Part.LineSegment(App.Vector(-9.332085, 27.445905, 0), App.Vector(-15.667915, 27.445905, 0)),  # 0
    Part.LineSegment(App.Vector(-15.667915, 27.445905, 0), App.Vector(-15.667915, 20.616908, 0)),  # 1
    Part.LineSegment(App.Vector(-15.667915, 20.616908, 0), App.Vector(-12.5, 18.787912, 0)),  # 2
    Part.LineSegment(App.Vector(-12.5, 18.787912, 0), App.Vector(-9.332085, 20.616908, 0)),  # 3
    Part.LineSegment(App.Vector(-9.332085, 20.616908, 0), App.Vector(-9.332085, 27.445905, 0)),  # 4
    Part.LineSegment(App.Vector(15.667915, 27.445905, 0), App.Vector(9.332085, 27.445905, 0)),  # 5
    Part.LineSegment(App.Vector(9.332085, 27.445905, 0), App.Vector(9.332085, 20.616908, 0)),  # 6
    Part.LineSegment(App.Vector(9.332085, 20.616908, 0), App.Vector(12.5, 18.787912, 0)),  # 7
    Part.LineSegment(App.Vector(12.5, 18.787912, 0), App.Vector(15.667915, 20.616908, 0)),  # 8
    Part.LineSegment(App.Vector(15.667915, 20.616908, 0), App.Vector(15.667915, 27.445905, 0)),  # 9
], False)
sketch14.addConstraint([
    Sketcher.Constraint("Coincident", 0, 2, 1, 1),
    Sketcher.Constraint("Coincident", 1, 2, 2, 1),
    Sketcher.Constraint("Coincident", 2, 2, 3, 1),
    Sketcher.Constraint("Coincident", 3, 2, 4, 1),
    Sketcher.Constraint("Coincident", 4, 2, 0, 1),
    Sketcher.Constraint("Coincident", 5, 2, 6, 1),
    Sketcher.Constraint("Coincident", 6, 2, 7, 1),
    Sketcher.Constraint("Coincident", 7, 2, 8, 1),
    Sketcher.Constraint("Coincident", 8, 2, 9, 1),
    Sketcher.Constraint("Coincident", 9, 2, 5, 1),
    Sketcher.Constraint("Horizontal", 0),
    Sketcher.Constraint("Vertical", 1),
    Sketcher.Constraint("Vertical", 4),
    Sketcher.Constraint("Horizontal", 5),
    Sketcher.Constraint("Vertical", 6),
    Sketcher.Constraint("Vertical", 9),
    Sketcher.Constraint("Symmetric", 4, 2, 5, 2, -2),
    Sketcher.Constraint("Symmetric", 2, 2, 7, 2, -2),
    Sketcher.Constraint("Symmetric", 1, 2, 8, 2, -2),
    Sketcher.Constraint("Parallel", 2, 7),
    Sketcher.Constraint("Parallel", 3, 8),
    Sketcher.Constraint("Horizontal", 1, 2, 3, 2),
    Sketcher.Constraint("Angle", 2, Q("-30 deg")),
    Sketcher.Constraint("DistanceX", 0, 2, 5, 2, Q("25 mm")),
    Sketcher.Constraint("DistanceX", 0, 2, 0, 1, Q("6.33583 mm")),
    Sketcher.Constraint("DistanceY", 1, 2, 1, 1, Q("6.828996 mm")),
    Sketcher.Constraint("DistanceY", -1, 1, 1, 2, Q("20.616908 mm")),
])
pocket11 = doc.addObject("PartDesign::Pocket", "Pocket010")
body.addObject(pocket11)
pocket11.Profile = sketch14
pocket11.Length = 2.5
pocket11.Reversed = True

doc.recompute()
